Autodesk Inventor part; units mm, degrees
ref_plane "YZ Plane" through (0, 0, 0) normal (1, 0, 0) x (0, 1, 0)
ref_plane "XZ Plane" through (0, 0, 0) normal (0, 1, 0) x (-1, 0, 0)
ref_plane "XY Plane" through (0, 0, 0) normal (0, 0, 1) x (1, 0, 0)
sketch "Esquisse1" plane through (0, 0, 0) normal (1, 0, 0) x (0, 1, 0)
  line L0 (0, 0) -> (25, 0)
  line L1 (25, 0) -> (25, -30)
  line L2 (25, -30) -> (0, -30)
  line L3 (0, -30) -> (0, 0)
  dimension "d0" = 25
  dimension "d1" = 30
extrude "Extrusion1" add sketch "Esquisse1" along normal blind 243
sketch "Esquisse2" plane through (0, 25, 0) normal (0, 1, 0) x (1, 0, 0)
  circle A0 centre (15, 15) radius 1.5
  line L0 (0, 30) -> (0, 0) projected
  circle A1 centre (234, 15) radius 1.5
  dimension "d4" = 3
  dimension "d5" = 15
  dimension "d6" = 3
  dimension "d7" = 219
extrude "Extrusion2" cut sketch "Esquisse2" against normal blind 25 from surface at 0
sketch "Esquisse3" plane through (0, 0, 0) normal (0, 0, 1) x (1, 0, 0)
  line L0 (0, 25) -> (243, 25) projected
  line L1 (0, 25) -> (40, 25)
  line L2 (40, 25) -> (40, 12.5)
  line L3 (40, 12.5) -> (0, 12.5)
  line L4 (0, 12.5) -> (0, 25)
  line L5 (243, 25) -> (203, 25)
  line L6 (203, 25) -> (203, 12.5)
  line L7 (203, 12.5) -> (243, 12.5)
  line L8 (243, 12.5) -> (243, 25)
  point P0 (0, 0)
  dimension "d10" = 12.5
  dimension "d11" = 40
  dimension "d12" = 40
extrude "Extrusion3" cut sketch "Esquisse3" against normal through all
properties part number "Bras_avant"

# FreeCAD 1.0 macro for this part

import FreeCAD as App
import Part
import Sketcher
from FreeCAD import Vector
Q = App.Units.Quantity

doc = App.newDocument("Part")
params = doc.addObject("Spreadsheet::Sheet", "Params")
for row, (alias, value) in enumerate([
    ("sketch1_width", "25 mm"),
    ("sketch1_height", "30 mm"),
    ("pad1_length", "243 mm"),
    ("sketch2_diameter", "3 mm"),
    ("pocket1_length", "25 mm"),
    ("sketch3_width", "40 mm"),
    ("sketch3_height", "12.5 mm"),
], start=1):
    params.set(f"A{row}", alias)
    params.set(f"B{row}", "=" + value)
    params.setAlias(f"B{row}", alias)

body = doc.addObject("PartDesign::Body", "Body")

# Sketch on YZ plane
sketch1 = body.newObject("Sketcher::SketchObject", "Sketch")
sketch1.AttachmentSupport = (doc.getObject("YZ_Plane"), [""])
sketch1.MapMode = "FlatFace"
sketch1.addGeometry(Part.LineSegment(Vector(25, 0, 0), Vector(0, 0, 0)), False)
sketch1.addGeometry(Part.LineSegment(Vector(0, 0, 0), Vector(0, -30, 0)), False)
sketch1.addGeometry(Part.LineSegment(Vector(0, -30, 0), Vector(25, -30, 0)), False)
sketch1.addGeometry(Part.LineSegment(Vector(25, -30, 0), Vector(25, 0, 0)), False)
sketch1.addConstraint(Sketcher.Constraint("Coincident", 0, 2, 1, 1))
sketch1.addConstraint(Sketcher.Constraint("Coincident", 1, 2, 2, 1))
sketch1.addConstraint(Sketcher.Constraint("Coincident", 2, 2, 3, 1))
sketch1.addConstraint(Sketcher.Constraint("Coincident", 3, 2, 0, 1))
sketch1.addConstraint(Sketcher.Constraint("Horizontal", 0))
sketch1.addConstraint(Sketcher.Constraint("Vertical", 1))
sketch1.addConstraint(Sketcher.Constraint("Horizontal", 2))
sketch1.addConstraint(Sketcher.Constraint("Vertical", 3))
sketch1.addConstraint(Sketcher.Constraint("Coincident", 0, 2, -1, 1))
sketch1.addConstraint(Sketcher.Constraint("DistanceX", 0, 2, 0, 1, Q("25 mm")))
sketch1.addConstraint(Sketcher.Constraint("DistanceY", 1, 2, 1, 1, Q("30 mm")))
sketch1.setExpression("Constraints[9]", "Params.sketch1_width")
sketch1.setExpression("Constraints[10]", "Params.sketch1_height")
pad1 = body.newObject("PartDesign::Pad", "Pad")
pad1.Profile = sketch1
pad1.setExpression("Length", "Params.pad1_length")

# Sketch on XZ plane
sketch2 = body.newObject("Sketcher::SketchObject", "Sketch001")
sketch2.AttachmentSupport = (doc.getObject("XZ_Plane"), [""])
sketch2.MapMode = "FlatFace"
sketch2.AttachmentOffset = App.Placement(Vector(0, 0, -25), App.Rotation())
sketch2.addGeometry(Part.Circle(Vector(15, -15, 0), Vector(0, 0, 1), 1.5), False)
sketch2.addGeometry(Part.Circle(Vector(234, -15, 0), Vector(0, 0, 1), 1.5), False)
sketch2.addConstraint(Sketcher.Constraint("Equal", 0, 1))
sketch2.addConstraint(Sketcher.Constraint("Horizontal", 0, 3, 1, 3))
sketch2.addConstraint(Sketcher.Constraint("Diameter", 0, Q("3 mm")))
sketch2.addConstraint(Sketcher.Constraint("DistanceX", -1, 1, 0, 3, Q("15 mm")))
sketch2.addConstraint(Sketcher.Constraint("DistanceY", 0, 3, -1, 1, Q("15 mm")))
sketch2.addConstraint(Sketcher.Constraint("DistanceX", 0, 3, 1, 3, Q("219 mm")))
sketch2.setExpression("Constraints[2]", "Params.sketch2_diameter")
pocket1 = body.newObject("PartDesign::Pocket", "Pocket")
pocket1.Profile = sketch2
pocket1.setExpression("Length", "Params.pocket1_length")
pocket1.Reversed = True

# Sketch on XY plane
sketch3 = body.newObject("Sketcher::SketchObject", "Sketch002")
sketch3.AttachmentSupport = (doc.getObject("XY_Plane"), [""])
sketch3.MapMode = "FlatFace"
sketch3.addGeometry(Part.LineSegment(Vector(243, 25, 0), Vector(203, 25, 0)), False)
sketch3.addGeometry(Part.LineSegment(Vector(203, 25, 0), Vector(203, 12, 0)), False)
sketch3.addGeometry(Part.LineSegment(Vector(203, 12, 0), Vector(243, 12, 0)), False)
sketch3.addGeometry(Part.LineSegment(Vector(243, 12, 0), Vector(243, 25, 0)), False)
sketch3.addGeometry(Part.LineSegment(Vector(40, 25, 0), Vector(0, 25, 0)), False)
sketch3.addGeometry(Part.LineSegment(Vector(0, 25, 0), Vector(0, 12, 0)), False)
sketch3.addGeometry(Part.LineSegment(Vector(0, 12, 0), Vector(40, 12, 0)), False)
sketch3.addGeometry(Part.LineSegment(Vector(40, 12, 0), Vector(40, 25, 0)), False)
sketch3.addConstraint(Sketcher.Constraint("Coincident", 0, 2, 1, 1))
sketch3.addConstraint(Sketcher.Constraint("Coincident", 1, 2, 2, 1))
sketch3.addConstraint(Sketcher.Constraint("Coincident", 2, 2, 3, 1))
sketch3.addConstraint(Sketcher.Constraint("Coincident", 3, 2, 0, 1))
sketch3.addConstraint(Sketcher.Constraint("Coincident", 4, 2, 5, 1))
sketch3.addConstraint(Sketcher.Constraint("Coincident", 5, 2, 6, 1))
sketch3.addConstraint(Sketcher.Constraint("Coincident", 6, 2, 7, 1))
sketch3.addConstraint(Sketcher.Constraint("Coincident", 7, 2, 4, 1))
sketch3.addConstraint(Sketcher.Constraint("Horizontal", 0))
sketch3.addConstraint(Sketcher.Constraint("Vertical", 1))
sketch3.addConstraint(Sketcher.Constraint("Horizontal", 2))
sketch3.addConstraint(Sketcher.Constraint("Vertical", 3))
sketch3.addConstraint(Sketcher.Constraint("Horizontal", 4))
sketch3.addConstraint(Sketcher.Constraint("Vertical", 5))
sketch3.addConstraint(Sketcher.Constraint("Horizontal", 6))
sketch3.addConstraint(Sketcher.Constraint("Vertical", 7))
sketch3.addConstraint(Sketcher.Constraint("PointOnObject", 4, 2, -2))
sketch3.addConstraint(Sketcher.Constraint("Horizontal", 3, 2, 4, 2))
sketch3.addConstraint(Sketcher.Constraint("Horizontal", 2, 2, 5, 2))
sketch3.addConstraint(Sketcher.Constraint("Equal", 2, 4))
sketch3.addConstraint(Sketcher.Constraint("DistanceX", 0, 2, 0, 1, Q("40 mm")))
sketch3.addConstraint(Sketcher.Constraint("DistanceY", 1, 2, 1, 1, Q("12.5 mm")))
sketch3.addConstraint(Sketcher.Constraint("DistanceY", -1, 1, 1, 2, Q("12.5 mm")))
sketch3.addConstraint(Sketcher.Constraint("DistanceX", -1, 1, 0, 2, Q("203 mm")))
sketch3.setExpression("Constraints[20]", "Params.sketch3_width")
sketch3.setExpression("Constraints[21]", "Params.sketch3_height")
pocket2 = body.newObject("PartDesign::Pocket", "Pocket001")
pocket2.Profile = sketch3
pocket2.Type = "ThroughAll"

doc.recompute()
